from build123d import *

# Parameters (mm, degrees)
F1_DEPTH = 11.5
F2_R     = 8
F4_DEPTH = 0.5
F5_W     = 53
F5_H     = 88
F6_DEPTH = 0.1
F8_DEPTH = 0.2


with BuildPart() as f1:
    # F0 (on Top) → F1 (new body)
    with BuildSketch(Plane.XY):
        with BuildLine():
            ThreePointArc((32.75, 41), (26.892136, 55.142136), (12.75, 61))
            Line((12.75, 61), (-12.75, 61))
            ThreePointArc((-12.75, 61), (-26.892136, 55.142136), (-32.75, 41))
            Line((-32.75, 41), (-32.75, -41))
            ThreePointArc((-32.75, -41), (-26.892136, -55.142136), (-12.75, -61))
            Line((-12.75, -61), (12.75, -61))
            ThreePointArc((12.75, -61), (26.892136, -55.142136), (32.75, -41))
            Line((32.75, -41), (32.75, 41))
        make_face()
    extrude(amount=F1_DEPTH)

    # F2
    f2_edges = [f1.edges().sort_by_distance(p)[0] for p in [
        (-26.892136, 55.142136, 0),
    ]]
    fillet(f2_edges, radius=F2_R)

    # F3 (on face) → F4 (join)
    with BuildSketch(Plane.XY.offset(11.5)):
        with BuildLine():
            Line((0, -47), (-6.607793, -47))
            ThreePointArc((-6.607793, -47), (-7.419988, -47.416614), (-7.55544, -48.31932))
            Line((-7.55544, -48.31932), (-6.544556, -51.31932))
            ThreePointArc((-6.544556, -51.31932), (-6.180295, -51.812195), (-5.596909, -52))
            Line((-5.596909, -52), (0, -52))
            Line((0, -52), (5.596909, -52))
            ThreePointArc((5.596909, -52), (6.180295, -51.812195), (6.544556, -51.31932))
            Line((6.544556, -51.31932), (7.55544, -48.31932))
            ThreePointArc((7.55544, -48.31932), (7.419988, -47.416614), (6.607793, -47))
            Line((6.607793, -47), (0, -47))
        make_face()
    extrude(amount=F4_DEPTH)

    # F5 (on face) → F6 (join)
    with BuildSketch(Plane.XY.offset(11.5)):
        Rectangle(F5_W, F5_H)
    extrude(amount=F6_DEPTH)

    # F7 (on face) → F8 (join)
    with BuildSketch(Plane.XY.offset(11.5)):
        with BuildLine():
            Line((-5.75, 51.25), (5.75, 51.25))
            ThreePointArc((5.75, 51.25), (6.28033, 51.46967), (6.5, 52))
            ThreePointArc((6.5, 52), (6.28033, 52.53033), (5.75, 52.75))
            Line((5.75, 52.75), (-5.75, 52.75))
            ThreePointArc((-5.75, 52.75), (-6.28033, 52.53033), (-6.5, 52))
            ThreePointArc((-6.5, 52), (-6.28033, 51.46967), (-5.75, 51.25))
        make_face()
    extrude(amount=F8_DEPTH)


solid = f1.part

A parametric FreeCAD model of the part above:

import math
import FreeCAD as App
import Part
import Sketcher
from FreeCAD import Vector


def edges_at(feature, points):
    """Names of the edges that pass closest to the given points."""
    edges = feature.Shape.Edges
    near = lambda p: min(range(len(edges)), key=lambda i: edges[i].distToShape(Part.Vertex(*p))[0])
    return sorted({f"Edge{near(p) + 1}" for p in points})

doc = App.newDocument("Part")
params = doc.addObject("Spreadsheet::Sheet", "Params")
for row, (alias, value) in enumerate([
    ("sketch1_radius", "19.999999 mm"),
    ("sketch1_height", "82 mm"),
    ("sketch1_width", "25.5 mm"),
    ("pad1_length", "11.5 mm"),
    ("fillet_radius", "8 mm"),
    ("sketch2_radius", "1 mm"),
    ("pad2_length", "0.5 mm"),
    ("sketch3_width", "53 mm"),
    ("sketch3_height", "88 mm"),
    ("pad3_length", "0.1 mm"),
    ("sketch4_radius", "0.75 mm"),
    ("sketch4_width", "11.5 mm"),
    ("pad4_length", "0.2 mm"),
], start=1):
    params.set(f"A{row}", alias)
    params.set(f"B{row}", "=" + value)
    params.setAlias(f"B{row}", alias)

body = doc.addObject("PartDesign::Body", "Body")

sketch1 = body.newObject("Sketcher::SketchObject", "Sketch")
sketch1.AttachmentSupport = (doc.getObject("XY_Plane"), [""])
sketch1.MapMode = "FlatFace"
sketch1.addGeometry([
    Part.ArcOfCircle(Part.Circle(Vector(12.750001, 41.000001, 0), Vector(0, 0, 1), 19.999999), math.radians(-0.000004), math.radians(90.000004)),
    Part.LineSegment(Vector(12.75, 61, 0), Vector(-12.75, 61, 0)),
    Part.ArcOfCircle(Part.Circle(Vector(-12.750001, 41.000001, 0), Vector(0, 0, 1), 19.999999), math.radians(89.999996), math.radians(180.000004)),
    Part.LineSegment(Vector(-32.75, 41, 0), Vector(-32.75, -41, 0)),
    Part.ArcOfCircle(Part.Circle(Vector(-12.750001, -41.000001, 0), Vector(0, 0, 1), 19.999999), math.radians(179.999996), math.radians(270.000004)),
    Part.LineSegment(Vector(-12.75, -61, 0), Vector(12.75, -61, 0)),
    Part.ArcOfCircle(Part.Circle(Vector(12.750001, -41.000001, 0), Vector(0, 0, 1), 19.999999), math.radians(-90.000004), math.radians(0.000004)),
    Part.LineSegment(Vector(32.75, -41, 0), Vector(32.75, 41, 0)),
], False)
sketch1.addConstraint([
    Sketcher.Constraint("Tangent", 0, 2, 1, 1),
    Sketcher.Constraint("Tangent", 1, 2, 2, 1),
    Sketcher.Constraint("Tangent", 2, 2, 3, 1),
    Sketcher.Constraint("Tangent", 3, 2, 4, 1),
    Sketcher.Constraint("Tangent", 4, 2, 5, 1),
    Sketcher.Constraint("Tangent", 5, 2, 6, 1),
    Sketcher.Constraint("Tangent", 6, 2, 7, 1),
    Sketcher.Constraint("Tangent", 7, 2, 0, 1),
    Sketcher.Constraint("Horizontal", 1),
    Sketcher.Constraint("Vertical", 3),
    Sketcher.Constraint("Horizontal", 5),
    Sketcher.Constraint("Vertical", 7),
    Sketcher.Constraint("Equal", 0, 2),
    Sketcher.Constraint("Equal", 2, 4),
    Sketcher.Constraint("Equal", 4, 6),
    Sketcher.Constraint("Symmetric", 0, 3, 4, 3, -1, 1),
    Sketcher.Constraint("Radius", 0, 19.999999),
    Sketcher.Constraint("DistanceY", 3, 2, 3, 1, 82.0),
    Sketcher.Constraint("DistanceX", 1, 2, 1, 1, 25.5),
])
sketch1.setExpression("Constraints[16]", "Params.sketch1_radius")
sketch1.setExpression("Constraints[17]", "Params.sketch1_height")
sketch1.setExpression("Constraints[18]", "Params.sketch1_width")
pad1 = body.newObject("PartDesign::Pad", "Pad")
pad1.Profile = sketch1
pad1.setExpression("Length", "Params.pad1_length")
doc.recompute()

fillet = body.newObject("PartDesign::Fillet", "Fillet")
fillet.Base = (pad1, edges_at(pad1, [(-26.892, 55.142, 0)]))
fillet.setExpression("Radius", "Params.fillet_radius")

sketch2 = body.newObject("Sketcher::SketchObject", "Sketch001")
sketch2.AttachmentSupport = (doc.getObject("XY_Plane"), [""])
sketch2.MapMode = "FlatFace"
sketch2.AttachmentOffset = App.Placement(Vector(0, 0, 11.5), App.Rotation())
sketch2.addGeometry([
    Part.ArcOfCircle(Part.Circle(Vector(-6.607793, -48, 0), Vector(0, 0, 1), 1), math.radians(90.000005), math.radians(198.621798)),
    Part.LineSegment(Vector(-7.55544, -48.31932, 0), Vector(-6.544556, -51.31932, 0)),
    Part.ArcOfCircle(Part.Circle(Vector(-5.596909, -51, 0), Vector(0, 0, 1), 1), math.radians(-161.378183), math.radians(-90.000008)),
    Part.LineSegment(Vector(-5.596909, -52, 0), Vector(5.596909, -52, 0)),
    Part.ArcOfCircle(Part.Circle(Vector(5.596909, -51, 0), Vector(0, 0, 1), 1), math.radians(-89.999992), math.radians(-18.621817)),
    Part.LineSegment(Vector(6.544556, -51.31932, 0), Vector(7.55544, -48.31932, 0)),
    Part.ArcOfCircle(Part.Circle(Vector(6.607793, -48, 0), Vector(0, 0, 1), 1), math.radians(-18.621798), math.radians(89.999995)),
    Part.LineSegment(Vector(6.607793, -47, 0), Vector(-6.607793, -47, 0)),
], False)
sketch2.addConstraint([
    Sketcher.Constraint("Tangent", 0, 2, 1, 1),
    Sketcher.Constraint("Tangent", 1, 2, 2, 1),
    Sketcher.Constraint("Tangent", 2, 2, 3, 1),
    Sketcher.Constraint("Tangent", 3, 2, 4, 1),
    Sketcher.Constraint("Tangent", 4, 2, 5, 1),
    Sketcher.Constraint("Tangent", 5, 2, 6, 1),
    Sketcher.Constraint("Tangent", 6, 2, 7, 1),
    Sketcher.Constraint("Tangent", 7, 2, 0, 1),
    Sketcher.Constraint("Horizontal", 3),
    Sketcher.Constraint("Horizontal", 7),
    Sketcher.Constraint("Equal", 0, 2),
    Sketcher.Constraint("Equal", 2, 4),
    Sketcher.Constraint("Equal", 4, 6),
    Sketcher.Constraint("Symmetric", 1, 2, 4, 2, -2),
    Sketcher.Constraint("Radius", 0, 1.0),
    Sketcher.Constraint("DistanceY", 0, 3, -1, 1, 48.0),
    Sketcher.Constraint("DistanceY", 2, 3, -1, 1, 51.0),
    Sketcher.Constraint("DistanceX", 0, 3, 4, 3, 12.204702),
    Sketcher.Constraint("DistanceX", 3, 1, 3, 2, 11.193818),
])
sketch2.setExpression("Constraints[14]", "Params.sketch2_radius")
pad2 = body.newObject("PartDesign::Pad", "Pad001")
pad2.Profile = sketch2
pad2.setExpression("Length", "Params.pad2_length")

sketch3 = body.newObject("Sketcher::SketchObject", "Sketch002")
sketch3.AttachmentSupport = (doc.getObject("XY_Plane"), [""])
sketch3.MapMode = "FlatFace"
sketch3.AttachmentOffset = App.Placement(Vector(0, 0, 11.5), App.Rotation())
sketch3.addGeometry([
    Part.LineSegment(Vector(-26.5, 44, 0), Vector(-26.5, -44, 0)),
    Part.LineSegment(Vector(-26.5, -44, 0), Vector(26.5, -44, 0)),
    Part.LineSegment(Vector(26.5, -44, 0), Vector(26.5, 44, 0)),
    Part.LineSegment(Vector(26.5, 44, 0), Vector(-26.5, 44, 0)),
], False)
sketch3.addConstraint([
    Sketcher.Constraint("Coincident", 0, 2, 1, 1),
    Sketcher.Constraint("Coincident", 1, 2, 2, 1),
    Sketcher.Constraint("Coincident", 2, 2, 3, 1),
    Sketcher.Constraint("Coincident", 3, 2, 0, 1),
    Sketcher.Constraint("Vertical", 0),
    Sketcher.Constraint("Horizontal", 1),
    Sketcher.Constraint("Vertical", 2),
    Sketcher.Constraint("Horizontal", 3),
    Sketcher.Constraint("Symmetric", 0, 2, 2, 2, -1, 1),
    Sketcher.Constraint("DistanceX", 1, 1, 1, 2, 53.0),
    Sketcher.Constraint("DistanceY", 0, 2, 0, 1, 88.0),
])
sketch3.setExpression("Constraints[9]", "Params.sketch3_width")
sketch3.setExpression("Constraints[10]", "Params.sketch3_height")
pad3 = body.newObject("PartDesign::Pad", "Pad002")
pad3.Profile = sketch3
pad3.setExpression("Length", "Params.pad3_length")

sketch4 = body.newObject("Sketcher::SketchObject", "Sketch003")
sketch4.AttachmentSupport = (doc.getObject("XY_Plane"), [""])
sketch4.MapMode = "FlatFace"
sketch4.AttachmentOffset = App.Placement(Vector(0, 0, 11.5), App.Rotation())
sketch4.addGeometry([
    Part.LineSegment(Vector(-5.75, 51.25, 0), Vector(5.75, 51.25, 0)),
    Part.ArcOfCircle(Part.Circle(Vector(5.75, 52, 0), Vector(0, 0, 1), 0.75), math.radians(-89.999978), math.radians(-0.000022)),
    Part.ArcOfCircle(Part.Circle(Vector(5.75, 52, 0), Vector(0, 0, 1), 0.75), math.radians(0.000022), math.radians(89.999978)),
    Part.LineSegment(Vector(5.75, 52.75, 0), Vector(-5.75, 52.75, 0)),
    Part.ArcOfCircle(Part.Circle(Vector(-5.75, 52, 0), Vector(0, 0, 1), 0.75), math.radians(90.000022), math.radians(179.999978)),
    Part.ArcOfCircle(Part.Circle(Vector(-5.75, 52, 0), Vector(0, 0, 1), 0.75), math.radians(-179.999978), math.radians(-90.000022)),
], False)
sketch4.addConstraint([
    Sketcher.Constraint("Tangent", 0, 2, 1, 1),
    Sketcher.Constraint("Tangent", 1, 2, 2, 1),
    Sketcher.Constraint("Tangent", 2, 2, 3, 1),
    Sketcher.Constraint("Tangent", 3, 2, 4, 1),
    Sketcher.Constraint("Tangent", 4, 2, 5, 1),
    Sketcher.Constraint("Tangent", 5, 2, 0, 1),
    Sketcher.Constraint("Horizontal", 0),
    Sketcher.Constraint("Horizontal", 3),
    Sketcher.Constraint("Equal", 1, 2),
    Sketcher.Constraint("Equal", 2, 4),
    Sketcher.Constraint("Symmetric", 1, 2, 4, 2, -2),
    Sketcher.Constraint("Horizontal", 5, 3, 1, 2),
    Sketcher.Constraint("Radius", 1, 0.75),
    Sketcher.Constraint("DistanceX", 0, 1, 0, 2, 11.5),
    Sketcher.Constraint("DistanceY", -1, 1, 1, 3, 52.0),
])
sketch4.setExpression("Constraints[12]", "Params.sketch4_radius")
sketch4.setExpression("Constraints[13]", "Params.sketch4_width")
pad4 = body.newObject("PartDesign::Pad", "Pad003")
pad4.Profile = sketch4
pad4.setExpression("Length", "Params.pad4_length")

doc.recompute()
